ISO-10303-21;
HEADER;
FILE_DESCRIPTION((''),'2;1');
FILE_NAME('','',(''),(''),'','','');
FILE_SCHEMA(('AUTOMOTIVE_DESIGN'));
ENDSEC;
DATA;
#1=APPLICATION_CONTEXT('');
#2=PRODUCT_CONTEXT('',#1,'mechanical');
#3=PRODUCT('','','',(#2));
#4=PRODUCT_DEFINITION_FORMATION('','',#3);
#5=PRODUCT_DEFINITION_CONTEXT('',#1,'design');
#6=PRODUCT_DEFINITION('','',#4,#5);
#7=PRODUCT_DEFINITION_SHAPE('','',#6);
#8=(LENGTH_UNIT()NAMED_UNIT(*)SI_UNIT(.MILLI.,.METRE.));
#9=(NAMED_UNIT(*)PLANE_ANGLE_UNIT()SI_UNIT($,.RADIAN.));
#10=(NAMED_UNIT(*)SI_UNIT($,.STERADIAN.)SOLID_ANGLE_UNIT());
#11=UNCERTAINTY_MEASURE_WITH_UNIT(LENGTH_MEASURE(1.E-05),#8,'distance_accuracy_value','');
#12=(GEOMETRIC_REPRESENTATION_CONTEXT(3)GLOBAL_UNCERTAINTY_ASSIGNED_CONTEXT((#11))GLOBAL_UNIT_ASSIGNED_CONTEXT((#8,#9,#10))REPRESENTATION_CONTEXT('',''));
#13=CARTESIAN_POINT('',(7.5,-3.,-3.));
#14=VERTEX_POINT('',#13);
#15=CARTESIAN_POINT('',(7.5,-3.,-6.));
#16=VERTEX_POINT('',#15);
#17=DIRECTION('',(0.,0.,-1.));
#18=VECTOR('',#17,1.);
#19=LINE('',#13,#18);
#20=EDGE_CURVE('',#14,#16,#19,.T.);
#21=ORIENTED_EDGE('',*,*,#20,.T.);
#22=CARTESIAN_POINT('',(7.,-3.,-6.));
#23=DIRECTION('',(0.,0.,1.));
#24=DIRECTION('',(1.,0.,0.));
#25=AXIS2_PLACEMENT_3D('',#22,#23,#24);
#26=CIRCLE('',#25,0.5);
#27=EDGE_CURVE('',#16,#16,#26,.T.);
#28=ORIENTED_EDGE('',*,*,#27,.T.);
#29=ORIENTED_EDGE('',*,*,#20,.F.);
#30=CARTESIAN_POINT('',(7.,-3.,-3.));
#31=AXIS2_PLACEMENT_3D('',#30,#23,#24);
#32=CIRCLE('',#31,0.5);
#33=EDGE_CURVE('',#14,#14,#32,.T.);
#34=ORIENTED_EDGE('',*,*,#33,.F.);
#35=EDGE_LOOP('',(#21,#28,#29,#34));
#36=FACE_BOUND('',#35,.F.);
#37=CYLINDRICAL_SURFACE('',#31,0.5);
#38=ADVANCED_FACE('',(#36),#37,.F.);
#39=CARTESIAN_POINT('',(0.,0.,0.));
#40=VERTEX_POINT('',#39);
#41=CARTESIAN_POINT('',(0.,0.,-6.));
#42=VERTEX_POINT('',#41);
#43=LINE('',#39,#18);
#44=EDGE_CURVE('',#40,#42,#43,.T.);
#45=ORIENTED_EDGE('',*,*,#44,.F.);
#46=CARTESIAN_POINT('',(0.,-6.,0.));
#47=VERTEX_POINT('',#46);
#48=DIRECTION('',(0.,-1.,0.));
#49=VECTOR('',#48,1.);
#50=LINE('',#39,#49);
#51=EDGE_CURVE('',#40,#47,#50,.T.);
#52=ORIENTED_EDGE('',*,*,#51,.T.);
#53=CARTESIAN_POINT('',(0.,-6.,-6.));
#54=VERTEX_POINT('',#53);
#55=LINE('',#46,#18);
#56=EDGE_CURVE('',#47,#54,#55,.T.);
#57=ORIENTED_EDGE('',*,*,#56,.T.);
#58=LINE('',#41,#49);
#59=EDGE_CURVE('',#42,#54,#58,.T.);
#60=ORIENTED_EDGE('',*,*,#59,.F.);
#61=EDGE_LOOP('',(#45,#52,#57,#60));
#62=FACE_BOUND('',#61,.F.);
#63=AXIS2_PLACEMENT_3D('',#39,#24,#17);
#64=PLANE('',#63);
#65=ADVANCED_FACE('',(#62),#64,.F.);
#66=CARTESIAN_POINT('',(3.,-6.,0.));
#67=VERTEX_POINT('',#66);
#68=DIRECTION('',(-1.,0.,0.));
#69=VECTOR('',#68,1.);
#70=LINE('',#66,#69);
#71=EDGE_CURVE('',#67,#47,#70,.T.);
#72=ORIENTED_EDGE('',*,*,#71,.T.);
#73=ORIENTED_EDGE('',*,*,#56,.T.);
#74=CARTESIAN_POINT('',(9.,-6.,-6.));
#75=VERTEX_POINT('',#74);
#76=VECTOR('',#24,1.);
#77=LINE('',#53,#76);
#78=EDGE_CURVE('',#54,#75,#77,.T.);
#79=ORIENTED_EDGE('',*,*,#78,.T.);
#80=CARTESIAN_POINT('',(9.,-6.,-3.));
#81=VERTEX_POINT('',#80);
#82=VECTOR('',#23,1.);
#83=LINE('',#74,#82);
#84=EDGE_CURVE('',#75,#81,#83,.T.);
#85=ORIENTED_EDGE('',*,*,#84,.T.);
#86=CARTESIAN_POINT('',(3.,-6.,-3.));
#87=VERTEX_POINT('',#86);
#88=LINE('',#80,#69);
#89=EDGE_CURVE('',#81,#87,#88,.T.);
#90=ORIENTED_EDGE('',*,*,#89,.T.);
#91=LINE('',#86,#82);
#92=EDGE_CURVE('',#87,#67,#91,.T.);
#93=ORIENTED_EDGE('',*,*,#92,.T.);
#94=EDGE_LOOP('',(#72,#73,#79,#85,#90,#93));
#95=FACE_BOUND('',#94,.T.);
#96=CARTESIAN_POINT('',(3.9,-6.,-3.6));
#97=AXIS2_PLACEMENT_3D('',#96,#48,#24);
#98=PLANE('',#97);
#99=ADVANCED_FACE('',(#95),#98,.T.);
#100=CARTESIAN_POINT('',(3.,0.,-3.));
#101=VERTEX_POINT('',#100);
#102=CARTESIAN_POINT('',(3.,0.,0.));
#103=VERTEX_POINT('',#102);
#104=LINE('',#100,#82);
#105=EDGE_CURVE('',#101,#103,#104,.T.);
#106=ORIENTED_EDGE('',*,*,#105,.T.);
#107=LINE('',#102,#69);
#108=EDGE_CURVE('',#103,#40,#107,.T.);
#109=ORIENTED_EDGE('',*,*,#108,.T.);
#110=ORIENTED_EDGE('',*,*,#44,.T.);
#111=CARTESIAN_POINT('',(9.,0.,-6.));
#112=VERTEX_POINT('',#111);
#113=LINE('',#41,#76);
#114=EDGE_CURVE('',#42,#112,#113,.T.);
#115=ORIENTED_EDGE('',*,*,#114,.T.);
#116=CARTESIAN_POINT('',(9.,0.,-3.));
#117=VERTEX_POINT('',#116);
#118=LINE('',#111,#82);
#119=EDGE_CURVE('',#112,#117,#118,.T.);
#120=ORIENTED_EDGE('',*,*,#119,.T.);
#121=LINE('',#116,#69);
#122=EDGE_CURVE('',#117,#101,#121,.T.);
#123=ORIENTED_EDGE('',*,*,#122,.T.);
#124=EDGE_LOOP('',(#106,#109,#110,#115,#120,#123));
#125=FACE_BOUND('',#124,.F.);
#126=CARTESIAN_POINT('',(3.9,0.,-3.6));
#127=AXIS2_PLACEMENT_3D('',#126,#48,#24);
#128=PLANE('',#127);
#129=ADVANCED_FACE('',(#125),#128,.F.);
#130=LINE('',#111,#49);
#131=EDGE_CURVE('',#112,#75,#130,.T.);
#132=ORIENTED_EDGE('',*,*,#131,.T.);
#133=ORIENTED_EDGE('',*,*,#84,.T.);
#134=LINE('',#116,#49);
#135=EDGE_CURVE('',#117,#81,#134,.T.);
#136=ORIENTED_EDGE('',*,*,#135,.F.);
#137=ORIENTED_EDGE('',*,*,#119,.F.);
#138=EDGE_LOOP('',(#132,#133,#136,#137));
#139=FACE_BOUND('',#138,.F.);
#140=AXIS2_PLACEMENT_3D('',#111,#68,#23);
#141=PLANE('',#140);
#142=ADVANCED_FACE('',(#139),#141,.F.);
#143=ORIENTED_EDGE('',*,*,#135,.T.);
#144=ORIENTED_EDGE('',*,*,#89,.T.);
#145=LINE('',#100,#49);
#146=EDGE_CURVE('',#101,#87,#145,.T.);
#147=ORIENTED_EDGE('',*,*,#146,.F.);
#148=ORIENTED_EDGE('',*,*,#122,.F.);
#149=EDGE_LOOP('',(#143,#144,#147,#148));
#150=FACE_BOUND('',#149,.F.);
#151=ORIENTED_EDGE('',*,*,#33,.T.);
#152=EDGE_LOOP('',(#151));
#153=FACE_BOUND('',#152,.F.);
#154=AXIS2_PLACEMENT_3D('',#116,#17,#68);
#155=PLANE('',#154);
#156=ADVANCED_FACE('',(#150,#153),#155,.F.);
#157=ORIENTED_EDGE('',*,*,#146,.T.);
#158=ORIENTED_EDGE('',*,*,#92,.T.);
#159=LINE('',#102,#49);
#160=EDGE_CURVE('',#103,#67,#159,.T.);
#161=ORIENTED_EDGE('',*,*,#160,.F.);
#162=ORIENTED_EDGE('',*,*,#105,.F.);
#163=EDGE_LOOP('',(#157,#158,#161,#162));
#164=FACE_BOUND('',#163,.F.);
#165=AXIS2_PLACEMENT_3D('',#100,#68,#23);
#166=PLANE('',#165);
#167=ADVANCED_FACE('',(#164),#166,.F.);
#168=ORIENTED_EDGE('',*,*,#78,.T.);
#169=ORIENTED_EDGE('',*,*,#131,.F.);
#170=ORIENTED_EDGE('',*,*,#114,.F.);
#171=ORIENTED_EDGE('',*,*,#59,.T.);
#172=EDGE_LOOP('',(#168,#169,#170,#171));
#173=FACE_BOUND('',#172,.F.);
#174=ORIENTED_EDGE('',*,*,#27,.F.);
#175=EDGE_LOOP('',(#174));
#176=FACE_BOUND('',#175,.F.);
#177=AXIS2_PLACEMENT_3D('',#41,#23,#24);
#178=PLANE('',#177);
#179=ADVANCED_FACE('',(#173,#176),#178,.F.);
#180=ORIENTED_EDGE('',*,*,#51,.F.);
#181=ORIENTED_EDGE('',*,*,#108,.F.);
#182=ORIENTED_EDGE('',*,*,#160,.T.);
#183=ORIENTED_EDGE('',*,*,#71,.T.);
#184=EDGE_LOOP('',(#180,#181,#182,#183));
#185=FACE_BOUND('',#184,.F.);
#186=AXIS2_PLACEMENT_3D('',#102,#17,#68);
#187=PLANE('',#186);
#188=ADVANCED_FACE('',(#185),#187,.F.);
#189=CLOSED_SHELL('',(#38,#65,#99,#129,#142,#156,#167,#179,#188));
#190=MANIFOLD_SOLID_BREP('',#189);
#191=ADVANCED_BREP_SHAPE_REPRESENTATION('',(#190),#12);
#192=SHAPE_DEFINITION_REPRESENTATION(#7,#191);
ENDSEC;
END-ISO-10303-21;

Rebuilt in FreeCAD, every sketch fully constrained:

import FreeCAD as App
import Part
import Sketcher
Q = App.Units.Quantity


def add_polygon(sketch, points):
    """Adds a closed chain of lines whose ends are joined by coincident constraints."""
    first, n = sketch.GeometryCount, len(points)
    for a, b in zip(points, points[1:] + points[:1]):
        sketch.addGeometry(Part.LineSegment(App.Vector(*a, 0), App.Vector(*b, 0)), False)
    for i in range(n):
        sketch.addConstraint(Sketcher.Constraint("Coincident", first + i, 2, first + (i + 1) % n, 1))

doc = App.newDocument("Part")
body = doc.addObject("PartDesign::Body", "Body")

# Sketch on XZ plane
sketch1 = body.newObject("Sketcher::SketchObject", "Sketch")
sketch1.AttachmentSupport = (doc.getObject("XZ_Plane"), [""])
sketch1.MapMode = "FlatFace"
add_polygon(sketch1, [(3, 0), (0, 0), (0, -6), (9, -6), (9, -3), (3, -3)])  # lines 0-5
sketch1.addConstraint([
    Sketcher.Constraint("Horizontal", 0),
    Sketcher.Constraint("Vertical", 1),
    Sketcher.Constraint("Horizontal", 2),
    Sketcher.Constraint("Vertical", 3),
    Sketcher.Constraint("Horizontal", 4),
    Sketcher.Constraint("Vertical", 5),
    Sketcher.Constraint("Coincident", 0, 2, -1, 1),
    Sketcher.Constraint("Equal", 4, 1),
    Sketcher.Constraint("Equal", 0, 3),
    Sketcher.Constraint("Equal", 3, 5),
    Sketcher.Constraint("DistanceX", 0, 2, 0, 1, Q("3 mm")),
])
pad1 = body.newObject("PartDesign::Pad", "Pad")
pad1.Profile = sketch1
pad1.Length = 6

# Sketch on XY plane
sketch2 = body.newObject("Sketcher::SketchObject", "Sketch001")
sketch2.AttachmentSupport = (doc.getObject("XY_Plane"), [""])
sketch2.MapMode = "FlatFace"
sketch2.AttachmentOffset = App.Placement(App.Vector(0, 0, -3), App.Rotation())
sketch2.addGeometry(Part.Circle(App.Vector(7, -3, 0), App.Vector(0, 0, 1), 0.5), False)
sketch2.addConstraint([
    Sketcher.Constraint("Diameter", 0, Q("1 mm")),
    Sketcher.Constraint("DistanceX", -1, 1, 0, 3, Q("7 mm")),
    Sketcher.Constraint("DistanceY", 0, 3, -1, 1, Q("3 mm")),
])
pocket1 = body.newObject("PartDesign::Pocket", "Pocket")
pocket1.Profile = sketch2
pocket1.Type = "ThroughAll"

doc.recompute()
